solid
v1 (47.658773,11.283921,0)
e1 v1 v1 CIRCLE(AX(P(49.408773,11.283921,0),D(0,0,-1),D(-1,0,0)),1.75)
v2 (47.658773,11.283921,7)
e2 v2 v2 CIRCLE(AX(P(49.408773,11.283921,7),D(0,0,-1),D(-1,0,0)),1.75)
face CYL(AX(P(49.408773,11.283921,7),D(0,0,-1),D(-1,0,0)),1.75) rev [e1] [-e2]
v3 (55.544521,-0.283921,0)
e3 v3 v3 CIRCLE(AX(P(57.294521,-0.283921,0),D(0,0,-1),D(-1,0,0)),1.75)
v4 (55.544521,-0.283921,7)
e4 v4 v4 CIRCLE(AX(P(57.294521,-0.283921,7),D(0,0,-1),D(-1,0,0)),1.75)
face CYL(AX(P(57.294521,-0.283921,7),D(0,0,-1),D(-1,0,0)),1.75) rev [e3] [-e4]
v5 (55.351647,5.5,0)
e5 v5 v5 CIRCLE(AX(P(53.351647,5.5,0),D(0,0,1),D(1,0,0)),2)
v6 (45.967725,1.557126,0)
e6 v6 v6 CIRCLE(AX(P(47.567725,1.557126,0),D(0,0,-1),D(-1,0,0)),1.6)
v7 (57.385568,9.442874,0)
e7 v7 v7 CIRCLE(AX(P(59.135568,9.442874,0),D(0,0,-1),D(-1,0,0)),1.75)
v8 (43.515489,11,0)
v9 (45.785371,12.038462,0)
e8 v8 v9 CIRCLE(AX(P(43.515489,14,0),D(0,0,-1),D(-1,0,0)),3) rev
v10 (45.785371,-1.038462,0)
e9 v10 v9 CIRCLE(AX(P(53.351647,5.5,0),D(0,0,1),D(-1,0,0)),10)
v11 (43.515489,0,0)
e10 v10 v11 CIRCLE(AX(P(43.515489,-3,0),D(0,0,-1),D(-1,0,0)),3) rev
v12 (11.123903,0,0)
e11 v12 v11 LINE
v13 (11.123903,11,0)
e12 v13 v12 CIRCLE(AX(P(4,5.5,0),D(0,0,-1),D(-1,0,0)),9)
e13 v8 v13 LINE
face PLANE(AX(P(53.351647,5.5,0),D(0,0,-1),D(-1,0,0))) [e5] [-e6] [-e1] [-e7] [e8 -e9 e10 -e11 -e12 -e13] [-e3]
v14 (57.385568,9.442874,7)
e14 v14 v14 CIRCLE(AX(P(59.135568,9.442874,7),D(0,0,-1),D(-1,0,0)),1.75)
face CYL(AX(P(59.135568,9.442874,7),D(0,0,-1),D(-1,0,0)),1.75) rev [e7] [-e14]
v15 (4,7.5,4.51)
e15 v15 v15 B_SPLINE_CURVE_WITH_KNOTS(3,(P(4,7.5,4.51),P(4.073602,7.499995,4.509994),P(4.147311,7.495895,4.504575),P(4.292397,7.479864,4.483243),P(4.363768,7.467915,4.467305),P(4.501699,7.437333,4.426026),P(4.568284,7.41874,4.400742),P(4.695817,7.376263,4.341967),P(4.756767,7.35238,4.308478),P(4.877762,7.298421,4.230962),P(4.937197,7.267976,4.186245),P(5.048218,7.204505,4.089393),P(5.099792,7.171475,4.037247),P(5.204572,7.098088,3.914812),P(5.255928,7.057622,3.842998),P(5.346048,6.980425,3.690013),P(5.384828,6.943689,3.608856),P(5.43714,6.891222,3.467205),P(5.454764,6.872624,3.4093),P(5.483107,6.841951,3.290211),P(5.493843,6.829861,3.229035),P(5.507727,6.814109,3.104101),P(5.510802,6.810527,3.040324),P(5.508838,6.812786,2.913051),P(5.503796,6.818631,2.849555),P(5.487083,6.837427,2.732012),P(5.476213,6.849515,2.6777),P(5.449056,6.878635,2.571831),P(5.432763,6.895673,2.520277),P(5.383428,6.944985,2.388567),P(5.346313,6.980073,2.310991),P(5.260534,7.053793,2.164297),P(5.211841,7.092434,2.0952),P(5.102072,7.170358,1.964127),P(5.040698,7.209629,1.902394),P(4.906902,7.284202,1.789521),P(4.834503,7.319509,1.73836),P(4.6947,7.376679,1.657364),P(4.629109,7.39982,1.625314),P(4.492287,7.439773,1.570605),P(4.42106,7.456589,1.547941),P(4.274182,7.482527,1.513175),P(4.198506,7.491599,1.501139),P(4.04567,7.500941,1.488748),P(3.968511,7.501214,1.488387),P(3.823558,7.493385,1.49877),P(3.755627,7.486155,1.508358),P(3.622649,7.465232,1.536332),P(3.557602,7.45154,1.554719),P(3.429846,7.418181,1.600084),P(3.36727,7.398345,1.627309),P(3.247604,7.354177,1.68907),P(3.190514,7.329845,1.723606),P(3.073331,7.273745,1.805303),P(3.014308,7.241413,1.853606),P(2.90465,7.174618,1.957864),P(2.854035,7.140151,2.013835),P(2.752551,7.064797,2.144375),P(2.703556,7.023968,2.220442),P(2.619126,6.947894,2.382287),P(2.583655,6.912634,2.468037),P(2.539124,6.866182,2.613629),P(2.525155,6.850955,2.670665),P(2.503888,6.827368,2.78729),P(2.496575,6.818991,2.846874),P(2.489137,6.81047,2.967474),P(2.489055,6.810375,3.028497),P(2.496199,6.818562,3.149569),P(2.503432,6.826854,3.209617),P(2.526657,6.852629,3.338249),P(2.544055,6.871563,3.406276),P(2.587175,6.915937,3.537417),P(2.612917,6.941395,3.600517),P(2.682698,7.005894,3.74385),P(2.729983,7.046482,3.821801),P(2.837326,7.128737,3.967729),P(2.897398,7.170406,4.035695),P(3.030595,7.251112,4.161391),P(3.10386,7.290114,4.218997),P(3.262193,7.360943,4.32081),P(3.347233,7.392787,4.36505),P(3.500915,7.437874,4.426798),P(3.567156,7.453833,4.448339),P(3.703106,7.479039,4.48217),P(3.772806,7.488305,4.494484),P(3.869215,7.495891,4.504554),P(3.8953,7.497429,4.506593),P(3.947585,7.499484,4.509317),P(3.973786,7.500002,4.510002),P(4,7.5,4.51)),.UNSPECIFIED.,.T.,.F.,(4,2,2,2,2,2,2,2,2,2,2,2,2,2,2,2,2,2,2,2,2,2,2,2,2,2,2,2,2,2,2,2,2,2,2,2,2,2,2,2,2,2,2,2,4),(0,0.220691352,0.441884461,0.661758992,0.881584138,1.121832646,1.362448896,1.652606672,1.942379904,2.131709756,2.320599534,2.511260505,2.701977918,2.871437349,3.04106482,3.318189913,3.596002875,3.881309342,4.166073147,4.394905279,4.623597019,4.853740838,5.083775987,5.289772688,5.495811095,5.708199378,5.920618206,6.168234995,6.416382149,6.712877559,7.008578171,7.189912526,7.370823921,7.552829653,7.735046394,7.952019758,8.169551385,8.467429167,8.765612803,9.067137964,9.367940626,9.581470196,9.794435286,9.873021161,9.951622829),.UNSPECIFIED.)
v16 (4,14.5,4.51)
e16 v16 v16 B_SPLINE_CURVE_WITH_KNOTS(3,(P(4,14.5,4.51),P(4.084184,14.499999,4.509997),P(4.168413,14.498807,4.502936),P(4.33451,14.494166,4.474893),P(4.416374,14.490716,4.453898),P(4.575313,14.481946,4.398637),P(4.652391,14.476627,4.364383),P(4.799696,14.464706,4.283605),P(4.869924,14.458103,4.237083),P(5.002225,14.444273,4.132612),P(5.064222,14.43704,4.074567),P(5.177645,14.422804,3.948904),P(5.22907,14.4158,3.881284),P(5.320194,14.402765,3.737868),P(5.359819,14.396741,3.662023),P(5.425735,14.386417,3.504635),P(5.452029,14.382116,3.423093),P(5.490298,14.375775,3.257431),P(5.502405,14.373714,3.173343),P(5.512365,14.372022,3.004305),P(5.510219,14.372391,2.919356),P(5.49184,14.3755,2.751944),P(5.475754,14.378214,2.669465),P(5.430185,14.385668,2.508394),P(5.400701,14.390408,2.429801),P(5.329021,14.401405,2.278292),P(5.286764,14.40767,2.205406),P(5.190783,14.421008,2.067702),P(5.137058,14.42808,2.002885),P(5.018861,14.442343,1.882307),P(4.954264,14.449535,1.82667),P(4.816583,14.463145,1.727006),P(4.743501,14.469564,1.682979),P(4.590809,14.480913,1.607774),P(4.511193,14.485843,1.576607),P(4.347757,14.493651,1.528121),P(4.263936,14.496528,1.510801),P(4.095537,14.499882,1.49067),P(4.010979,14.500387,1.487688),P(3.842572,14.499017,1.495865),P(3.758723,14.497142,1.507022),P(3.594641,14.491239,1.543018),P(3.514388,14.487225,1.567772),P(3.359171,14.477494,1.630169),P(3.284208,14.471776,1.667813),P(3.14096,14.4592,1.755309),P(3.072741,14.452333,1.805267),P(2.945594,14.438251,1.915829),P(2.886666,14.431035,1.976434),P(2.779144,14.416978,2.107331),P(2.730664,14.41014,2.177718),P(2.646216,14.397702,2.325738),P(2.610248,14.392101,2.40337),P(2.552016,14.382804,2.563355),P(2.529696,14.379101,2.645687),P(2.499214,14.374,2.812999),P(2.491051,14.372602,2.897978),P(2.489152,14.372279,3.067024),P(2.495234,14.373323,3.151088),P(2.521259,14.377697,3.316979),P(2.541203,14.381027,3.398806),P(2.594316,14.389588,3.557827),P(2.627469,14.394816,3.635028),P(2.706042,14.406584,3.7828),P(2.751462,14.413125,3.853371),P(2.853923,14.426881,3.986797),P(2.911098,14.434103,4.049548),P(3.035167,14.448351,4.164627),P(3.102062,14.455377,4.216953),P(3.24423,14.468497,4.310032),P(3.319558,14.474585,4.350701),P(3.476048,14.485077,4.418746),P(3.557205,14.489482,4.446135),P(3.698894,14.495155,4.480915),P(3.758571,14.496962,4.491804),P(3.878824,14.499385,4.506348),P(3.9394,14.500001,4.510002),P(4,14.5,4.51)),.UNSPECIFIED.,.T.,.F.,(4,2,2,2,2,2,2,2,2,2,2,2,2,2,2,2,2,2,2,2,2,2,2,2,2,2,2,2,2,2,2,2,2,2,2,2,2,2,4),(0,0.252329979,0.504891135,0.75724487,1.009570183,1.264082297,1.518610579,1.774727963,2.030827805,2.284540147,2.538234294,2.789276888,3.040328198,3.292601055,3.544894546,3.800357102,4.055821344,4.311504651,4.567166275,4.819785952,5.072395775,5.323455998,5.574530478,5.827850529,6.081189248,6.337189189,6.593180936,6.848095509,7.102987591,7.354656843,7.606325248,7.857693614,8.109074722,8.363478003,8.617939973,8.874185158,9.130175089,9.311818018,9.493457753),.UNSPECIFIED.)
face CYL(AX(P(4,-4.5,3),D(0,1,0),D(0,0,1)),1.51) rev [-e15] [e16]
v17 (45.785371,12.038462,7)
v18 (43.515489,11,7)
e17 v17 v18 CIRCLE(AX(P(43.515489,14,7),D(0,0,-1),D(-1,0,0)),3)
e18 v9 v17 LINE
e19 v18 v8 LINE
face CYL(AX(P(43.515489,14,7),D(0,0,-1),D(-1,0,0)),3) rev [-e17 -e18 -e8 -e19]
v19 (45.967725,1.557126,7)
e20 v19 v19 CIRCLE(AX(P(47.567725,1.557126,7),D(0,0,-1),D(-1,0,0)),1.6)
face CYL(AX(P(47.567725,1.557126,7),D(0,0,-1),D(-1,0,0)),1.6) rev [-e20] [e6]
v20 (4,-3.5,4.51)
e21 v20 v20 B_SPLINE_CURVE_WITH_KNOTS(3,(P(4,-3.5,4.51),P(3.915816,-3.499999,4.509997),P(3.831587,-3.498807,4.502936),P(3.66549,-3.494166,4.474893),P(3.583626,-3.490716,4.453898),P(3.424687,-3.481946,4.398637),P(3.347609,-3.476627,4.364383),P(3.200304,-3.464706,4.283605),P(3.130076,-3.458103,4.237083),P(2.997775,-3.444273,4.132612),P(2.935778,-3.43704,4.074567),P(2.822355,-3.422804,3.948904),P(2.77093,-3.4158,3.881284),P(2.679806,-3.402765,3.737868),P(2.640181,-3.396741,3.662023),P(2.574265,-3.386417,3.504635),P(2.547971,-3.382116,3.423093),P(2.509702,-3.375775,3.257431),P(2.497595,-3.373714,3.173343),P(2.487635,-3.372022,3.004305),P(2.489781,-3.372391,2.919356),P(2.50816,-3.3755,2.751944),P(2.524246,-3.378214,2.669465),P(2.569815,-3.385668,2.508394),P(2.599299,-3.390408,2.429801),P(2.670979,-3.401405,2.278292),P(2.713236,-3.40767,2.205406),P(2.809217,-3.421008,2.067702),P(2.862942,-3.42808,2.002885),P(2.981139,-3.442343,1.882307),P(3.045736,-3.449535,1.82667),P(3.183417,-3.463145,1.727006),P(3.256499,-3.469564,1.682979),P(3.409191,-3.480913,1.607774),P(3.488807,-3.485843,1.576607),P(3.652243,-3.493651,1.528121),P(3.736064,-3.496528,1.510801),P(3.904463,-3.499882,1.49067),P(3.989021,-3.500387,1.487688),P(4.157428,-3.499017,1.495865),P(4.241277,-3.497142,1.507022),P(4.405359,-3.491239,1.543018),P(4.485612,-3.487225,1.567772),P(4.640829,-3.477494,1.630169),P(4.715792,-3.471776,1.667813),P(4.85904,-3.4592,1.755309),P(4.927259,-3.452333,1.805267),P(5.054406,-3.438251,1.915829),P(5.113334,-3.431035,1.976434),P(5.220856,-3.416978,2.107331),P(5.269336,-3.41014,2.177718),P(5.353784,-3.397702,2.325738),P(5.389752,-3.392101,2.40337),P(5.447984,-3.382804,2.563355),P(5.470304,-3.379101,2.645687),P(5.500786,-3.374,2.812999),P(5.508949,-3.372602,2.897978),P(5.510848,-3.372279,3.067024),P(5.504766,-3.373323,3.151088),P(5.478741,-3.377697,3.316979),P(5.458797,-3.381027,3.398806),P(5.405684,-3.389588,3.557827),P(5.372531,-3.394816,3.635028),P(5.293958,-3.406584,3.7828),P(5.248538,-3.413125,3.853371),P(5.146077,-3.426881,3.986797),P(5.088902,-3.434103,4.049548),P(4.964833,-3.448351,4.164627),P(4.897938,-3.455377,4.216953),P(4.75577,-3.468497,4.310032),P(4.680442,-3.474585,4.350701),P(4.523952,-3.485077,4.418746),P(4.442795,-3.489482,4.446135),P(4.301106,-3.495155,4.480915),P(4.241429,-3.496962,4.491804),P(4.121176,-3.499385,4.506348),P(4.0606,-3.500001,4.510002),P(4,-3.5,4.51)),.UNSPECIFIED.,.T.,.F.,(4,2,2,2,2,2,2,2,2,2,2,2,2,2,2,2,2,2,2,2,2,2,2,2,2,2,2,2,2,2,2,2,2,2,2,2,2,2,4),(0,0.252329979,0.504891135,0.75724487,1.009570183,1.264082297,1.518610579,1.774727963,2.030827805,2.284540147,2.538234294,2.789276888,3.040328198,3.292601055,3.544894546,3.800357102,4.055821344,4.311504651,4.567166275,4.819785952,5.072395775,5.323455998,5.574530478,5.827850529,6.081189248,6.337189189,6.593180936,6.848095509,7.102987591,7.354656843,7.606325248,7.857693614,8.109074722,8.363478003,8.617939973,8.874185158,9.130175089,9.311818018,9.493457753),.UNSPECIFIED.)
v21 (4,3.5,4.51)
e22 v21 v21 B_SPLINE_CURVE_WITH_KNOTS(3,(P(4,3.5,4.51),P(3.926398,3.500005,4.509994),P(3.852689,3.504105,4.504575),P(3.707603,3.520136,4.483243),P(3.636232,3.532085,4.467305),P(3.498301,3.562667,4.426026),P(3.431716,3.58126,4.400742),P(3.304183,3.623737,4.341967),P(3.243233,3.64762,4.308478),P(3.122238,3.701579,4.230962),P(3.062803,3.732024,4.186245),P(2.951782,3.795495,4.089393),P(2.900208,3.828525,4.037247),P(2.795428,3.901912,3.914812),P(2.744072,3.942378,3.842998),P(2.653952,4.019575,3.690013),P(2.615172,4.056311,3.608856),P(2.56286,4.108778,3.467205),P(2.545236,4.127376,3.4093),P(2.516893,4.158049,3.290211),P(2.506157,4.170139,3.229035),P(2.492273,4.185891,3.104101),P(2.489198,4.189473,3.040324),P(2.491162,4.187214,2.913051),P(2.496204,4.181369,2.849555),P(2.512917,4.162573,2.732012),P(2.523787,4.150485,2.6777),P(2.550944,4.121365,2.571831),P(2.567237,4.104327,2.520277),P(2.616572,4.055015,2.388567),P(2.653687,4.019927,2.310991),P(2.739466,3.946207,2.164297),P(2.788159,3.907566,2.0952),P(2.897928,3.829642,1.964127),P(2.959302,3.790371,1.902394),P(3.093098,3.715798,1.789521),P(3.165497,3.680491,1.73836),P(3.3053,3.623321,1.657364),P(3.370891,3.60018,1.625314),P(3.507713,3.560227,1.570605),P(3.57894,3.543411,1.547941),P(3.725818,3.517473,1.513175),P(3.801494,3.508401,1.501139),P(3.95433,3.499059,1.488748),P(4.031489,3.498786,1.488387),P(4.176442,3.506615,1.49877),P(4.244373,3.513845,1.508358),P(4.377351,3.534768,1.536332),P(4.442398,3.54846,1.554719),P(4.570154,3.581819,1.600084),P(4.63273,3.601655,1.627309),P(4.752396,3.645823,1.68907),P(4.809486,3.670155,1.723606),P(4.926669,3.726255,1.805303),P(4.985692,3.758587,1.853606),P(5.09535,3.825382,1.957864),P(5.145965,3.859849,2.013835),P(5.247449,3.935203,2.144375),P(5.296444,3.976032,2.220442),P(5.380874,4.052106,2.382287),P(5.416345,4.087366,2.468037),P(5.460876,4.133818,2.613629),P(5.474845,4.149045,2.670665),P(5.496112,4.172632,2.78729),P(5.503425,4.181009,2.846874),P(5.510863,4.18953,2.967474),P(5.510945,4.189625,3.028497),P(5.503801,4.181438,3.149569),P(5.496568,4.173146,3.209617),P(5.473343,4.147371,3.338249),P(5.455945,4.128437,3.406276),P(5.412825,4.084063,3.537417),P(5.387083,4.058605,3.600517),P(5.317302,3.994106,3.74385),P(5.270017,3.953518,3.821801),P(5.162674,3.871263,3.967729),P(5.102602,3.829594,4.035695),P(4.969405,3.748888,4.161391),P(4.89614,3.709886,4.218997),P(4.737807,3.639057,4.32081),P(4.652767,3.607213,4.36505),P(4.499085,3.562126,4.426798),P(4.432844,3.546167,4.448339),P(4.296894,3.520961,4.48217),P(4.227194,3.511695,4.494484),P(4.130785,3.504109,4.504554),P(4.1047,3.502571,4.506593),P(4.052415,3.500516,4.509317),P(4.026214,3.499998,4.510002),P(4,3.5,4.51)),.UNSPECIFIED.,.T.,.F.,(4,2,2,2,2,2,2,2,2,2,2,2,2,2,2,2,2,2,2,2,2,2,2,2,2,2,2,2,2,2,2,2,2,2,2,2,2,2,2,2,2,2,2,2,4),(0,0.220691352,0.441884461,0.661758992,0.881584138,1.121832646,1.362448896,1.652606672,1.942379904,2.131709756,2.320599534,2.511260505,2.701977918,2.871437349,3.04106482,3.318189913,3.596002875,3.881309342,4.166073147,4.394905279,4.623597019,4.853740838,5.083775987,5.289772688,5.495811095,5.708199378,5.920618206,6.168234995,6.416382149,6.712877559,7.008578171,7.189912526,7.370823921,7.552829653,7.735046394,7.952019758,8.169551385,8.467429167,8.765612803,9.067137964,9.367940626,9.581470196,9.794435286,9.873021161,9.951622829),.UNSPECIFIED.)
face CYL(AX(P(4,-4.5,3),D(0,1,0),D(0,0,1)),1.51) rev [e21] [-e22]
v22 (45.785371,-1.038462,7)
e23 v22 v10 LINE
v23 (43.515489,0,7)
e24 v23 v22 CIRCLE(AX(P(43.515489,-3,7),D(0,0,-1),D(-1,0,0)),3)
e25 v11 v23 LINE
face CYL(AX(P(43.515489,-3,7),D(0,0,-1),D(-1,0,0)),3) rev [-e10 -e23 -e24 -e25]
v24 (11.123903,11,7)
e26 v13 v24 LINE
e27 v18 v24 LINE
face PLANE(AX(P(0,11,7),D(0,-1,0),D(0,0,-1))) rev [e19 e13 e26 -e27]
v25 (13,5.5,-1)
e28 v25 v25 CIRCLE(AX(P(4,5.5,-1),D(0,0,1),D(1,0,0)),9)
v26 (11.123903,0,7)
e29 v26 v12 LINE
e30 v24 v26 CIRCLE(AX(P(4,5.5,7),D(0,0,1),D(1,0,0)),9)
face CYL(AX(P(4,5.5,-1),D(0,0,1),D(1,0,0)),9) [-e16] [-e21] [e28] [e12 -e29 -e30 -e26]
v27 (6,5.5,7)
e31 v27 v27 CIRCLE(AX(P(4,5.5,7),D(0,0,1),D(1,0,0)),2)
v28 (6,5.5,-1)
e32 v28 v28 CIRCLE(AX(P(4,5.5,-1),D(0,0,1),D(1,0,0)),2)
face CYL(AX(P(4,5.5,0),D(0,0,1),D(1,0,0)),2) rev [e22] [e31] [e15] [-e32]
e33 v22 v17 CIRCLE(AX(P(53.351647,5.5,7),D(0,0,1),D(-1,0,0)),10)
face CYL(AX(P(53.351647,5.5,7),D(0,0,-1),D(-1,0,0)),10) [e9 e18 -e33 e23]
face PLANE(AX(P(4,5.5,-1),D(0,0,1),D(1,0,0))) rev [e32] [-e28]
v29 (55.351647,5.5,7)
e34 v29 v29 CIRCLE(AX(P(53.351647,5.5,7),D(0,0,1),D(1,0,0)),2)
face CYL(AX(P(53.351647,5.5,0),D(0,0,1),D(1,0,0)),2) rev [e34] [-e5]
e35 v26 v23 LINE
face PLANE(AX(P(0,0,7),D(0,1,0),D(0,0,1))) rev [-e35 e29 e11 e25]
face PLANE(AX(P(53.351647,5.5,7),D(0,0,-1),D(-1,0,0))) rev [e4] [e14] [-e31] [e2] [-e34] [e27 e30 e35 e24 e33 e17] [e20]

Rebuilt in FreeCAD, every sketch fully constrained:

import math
import FreeCAD as App
import Part
import Sketcher
from FreeCAD import Vector


def edges_at(feature, points):
    """Names of the edges that pass closest to the given points."""
    edges = feature.Shape.Edges
    near = lambda p: min(range(len(edges)), key=lambda i: edges[i].distToShape(Part.Vertex(*p))[0])
    return sorted({f"Edge{near(p) + 1}" for p in points})

doc = App.newDocument("Part")
body = doc.addObject("PartDesign::Body", "Body")

sketch1 = body.newObject("Sketcher::SketchObject", "Sketch")
sketch1.AttachmentSupport = (doc.getObject("XY_Plane"), [""])
sketch1.MapMode = "FlatFace"
sketch1.addGeometry([
    Part.LineSegment(Vector(0, 11, 0), Vector(0, 0, 0)),
    Part.LineSegment(Vector(0, 0, 0), Vector(45, 0, 0)),
    Part.ArcOfCircle(Part.Circle(Vector(53, 6, 0), Vector(0, 0, 1), 10), math.radians(-147), math.radians(147)),
    Part.LineSegment(Vector(45, 11, 0), Vector(0, 11, 0)),
], False)
sketch1.addConstraint([
    Sketcher.Constraint("Coincident", 0, 2, 1, 1),
    Sketcher.Constraint("Coincident", 1, 2, 2, 1),
    Sketcher.Constraint("Coincident", 2, 2, 3, 1),
    Sketcher.Constraint("Coincident", 3, 2, 0, 1),
    Sketcher.Constraint("Vertical", 0),
    Sketcher.Constraint("Horizontal", 1),
    Sketcher.Constraint("Horizontal", 3),
    Sketcher.Constraint("Coincident", 0, 2, -1, 1),
    Sketcher.Constraint("Vertical", 1, 2, 2, 2),
    Sketcher.Constraint("Radius", 2, 10.0),
    Sketcher.Constraint("DistanceX", 1, 1, 1, 2, 45.0),
    Sketcher.Constraint("DistanceY", 0, 2, 0, 1, 11.0),
])
pad1 = body.newObject("PartDesign::Pad", "Pad")
pad1.Profile = sketch1
pad1.Length = 7

sketch2 = body.newObject("Sketcher::SketchObject", "Sketch001")
sketch2.AttachmentSupport = (doc.getObject("XY_Plane"), [""])
sketch2.MapMode = "FlatFace"
sketch2.AttachmentOffset = App.Placement(Vector(0, 0, 7), App.Rotation())
sketch2.addGeometry([
    Part.Circle(Vector(53.4, 5.5, 0), Vector(0, 0, 1), 2),
    Part.Circle(Vector(-8.4, 5.5, 0), Vector(0, 0, 1), 2),
], False)
sketch2.addConstraint([
    Sketcher.Constraint("Equal", 0, 1),
    Sketcher.Constraint("Horizontal", 0, 3, 1, 3),
    Sketcher.Constraint("Diameter", 0, 4.0),
    Sketcher.Constraint("DistanceY", -1, 1, 0, 3, 5.5),
    Sketcher.Constraint("DistanceX", -1, 1, 0, 3, 53.351647),
    Sketcher.Constraint("DistanceX", 1, 3, -1, 1, 8.351647),
])
pocket1 = body.newObject("PartDesign::Pocket", "Pocket")
pocket1.Profile = sketch2
pocket1.Type = "ThroughAll"
doc.recompute()

fillet = body.newObject("PartDesign::Fillet", "Fillet")
fillet.Base = (pocket1, edges_at(pocket1, [(45, 11, 3.5), (45, 0, 3.5)]))
fillet.Radius = 3

sketch3 = body.newObject("Sketcher::SketchObject", "Sketch002")
sketch3.AttachmentSupport = (doc.getObject("XY_Plane"), [""])
sketch3.MapMode = "FlatFace"
sketch3.AttachmentOffset = App.Placement(Vector(0, 0, 7), App.Rotation())
sketch3.addGeometry(Part.Circle(Vector(4, 5.5, 0), Vector(0, 0, 1), 2), False)
sketch3.addConstraint([
    Sketcher.Constraint("Diameter", 0, 4.0),
    Sketcher.Constraint("DistanceX", -1, 1, 0, 3, 4.0),
    Sketcher.Constraint("DistanceY", -1, 1, 0, 3, 5.5),
])
pocket2 = body.newObject("PartDesign::Pocket", "Pocket001")
pocket2.Profile = sketch3
pocket2.Type = "ThroughAll"

sketch4 = body.newObject("Sketcher::SketchObject", "Sketch003")
sketch4.AttachmentSupport = (doc.getObject("XY_Plane"), [""])
sketch4.MapMode = "FlatFace"
sketch4.AttachmentOffset = App.Placement(Vector(0, 0, 7), App.Rotation())
sketch4.addGeometry([
    Part.Circle(Vector(4, 5.5, 0), Vector(0, 0, 1), 9),
    Part.Circle(Vector(4, 5.5, 0), Vector(0, 0, 1), 2),
], False)
sketch4.addConstraint([
    Sketcher.Constraint("Coincident", 1, 3, 0, 3),
    Sketcher.Constraint("Diameter", 0, 18.0),
    Sketcher.Constraint("Diameter", 1, 4.0),
    Sketcher.Constraint("DistanceX", -1, 1, 0, 3, 4.0),
    Sketcher.Constraint("DistanceY", -1, 1, 0, 3, 5.5),
])
pad2 = body.newObject("PartDesign::Pad", "Pad001")
pad2.Profile = sketch4
pad2.Length = 8
pad2.Reversed = True

sketch5 = body.newObject("Sketcher::SketchObject", "Sketch004")
sketch5.AttachmentSupport = (doc.getObject("XY_Plane"), [""])
sketch5.MapMode = "FlatFace"
sketch5.addGeometry([
    Part.Circle(Vector(47.6, 1.6, 0), Vector(0, 0, 1), 1.6),
    Part.Circle(Vector(57.3, -0.3, 0), Vector(0, 0, 1), 1.8),
    Part.Circle(Vector(59.1, 9.4, 0), Vector(0, 0, 1), 1.8),
    Part.Circle(Vector(49.4, 11.3, 0), Vector(0, 0, 1), 1.8),
], False)
sketch5.addConstraint([
    Sketcher.Constraint("Equal", 1, 2),
    Sketcher.Constraint("Equal", 2, 3),
    Sketcher.Constraint("Diameter", 0, 3.2),
    Sketcher.Constraint("Diameter", 1, 3.5),
    Sketcher.Constraint("DistanceX", -1, 1, 1, 3, 57.294521),
    Sketcher.Constraint("DistanceY", 1, 3, -1, 1, 0.283921),
    Sketcher.Constraint("DistanceY", -1, 1, 3, 3, 11.283921),
    Sketcher.Constraint("DistanceY", 0, 3, 2, 3, 7.885748),
    Sketcher.Constraint("DistanceX", 3, 3, 1, 3, 7.885748),
    Sketcher.Constraint("DistanceX", -1, 1, 0, 3, 47.567725),
    Sketcher.Constraint("DistanceY", -1, 1, 0, 3, 1.557126),
    Sketcher.Constraint("DistanceX", -1, 1, 2, 3, 59.135568),
])
pocket3 = body.newObject("PartDesign::Pocket", "Pocket002")
pocket3.Profile = sketch5
pocket3.Type = "ThroughAll"
pocket3.Reversed = True

sketch6 = body.newObject("Sketcher::SketchObject", "Sketch005")
sketch6.AttachmentSupport = (doc.getObject("XZ_Plane"), [""])
sketch6.MapMode = "FlatFace"
sketch6.AttachmentOffset = App.Placement(Vector(0, 0, -5.5), App.Rotation())
sketch6.addGeometry(Part.Circle(Vector(4, 3, 0), Vector(0, 0, 1), 1.5), False)
sketch6.addConstraint([
    Sketcher.Constraint("Diameter", 0, 3.02),
    Sketcher.Constraint("DistanceX", -1, 1, 0, 3, 4.0),
    Sketcher.Constraint("DistanceY", -1, 1, 0, 3, 3.0),
])
pocket4 = body.newObject("PartDesign::Pocket", "Pocket003")
pocket4.Profile = sketch6
pocket4.Type = "ThroughAll"
pocket4.Midplane = True

doc.recompute()
